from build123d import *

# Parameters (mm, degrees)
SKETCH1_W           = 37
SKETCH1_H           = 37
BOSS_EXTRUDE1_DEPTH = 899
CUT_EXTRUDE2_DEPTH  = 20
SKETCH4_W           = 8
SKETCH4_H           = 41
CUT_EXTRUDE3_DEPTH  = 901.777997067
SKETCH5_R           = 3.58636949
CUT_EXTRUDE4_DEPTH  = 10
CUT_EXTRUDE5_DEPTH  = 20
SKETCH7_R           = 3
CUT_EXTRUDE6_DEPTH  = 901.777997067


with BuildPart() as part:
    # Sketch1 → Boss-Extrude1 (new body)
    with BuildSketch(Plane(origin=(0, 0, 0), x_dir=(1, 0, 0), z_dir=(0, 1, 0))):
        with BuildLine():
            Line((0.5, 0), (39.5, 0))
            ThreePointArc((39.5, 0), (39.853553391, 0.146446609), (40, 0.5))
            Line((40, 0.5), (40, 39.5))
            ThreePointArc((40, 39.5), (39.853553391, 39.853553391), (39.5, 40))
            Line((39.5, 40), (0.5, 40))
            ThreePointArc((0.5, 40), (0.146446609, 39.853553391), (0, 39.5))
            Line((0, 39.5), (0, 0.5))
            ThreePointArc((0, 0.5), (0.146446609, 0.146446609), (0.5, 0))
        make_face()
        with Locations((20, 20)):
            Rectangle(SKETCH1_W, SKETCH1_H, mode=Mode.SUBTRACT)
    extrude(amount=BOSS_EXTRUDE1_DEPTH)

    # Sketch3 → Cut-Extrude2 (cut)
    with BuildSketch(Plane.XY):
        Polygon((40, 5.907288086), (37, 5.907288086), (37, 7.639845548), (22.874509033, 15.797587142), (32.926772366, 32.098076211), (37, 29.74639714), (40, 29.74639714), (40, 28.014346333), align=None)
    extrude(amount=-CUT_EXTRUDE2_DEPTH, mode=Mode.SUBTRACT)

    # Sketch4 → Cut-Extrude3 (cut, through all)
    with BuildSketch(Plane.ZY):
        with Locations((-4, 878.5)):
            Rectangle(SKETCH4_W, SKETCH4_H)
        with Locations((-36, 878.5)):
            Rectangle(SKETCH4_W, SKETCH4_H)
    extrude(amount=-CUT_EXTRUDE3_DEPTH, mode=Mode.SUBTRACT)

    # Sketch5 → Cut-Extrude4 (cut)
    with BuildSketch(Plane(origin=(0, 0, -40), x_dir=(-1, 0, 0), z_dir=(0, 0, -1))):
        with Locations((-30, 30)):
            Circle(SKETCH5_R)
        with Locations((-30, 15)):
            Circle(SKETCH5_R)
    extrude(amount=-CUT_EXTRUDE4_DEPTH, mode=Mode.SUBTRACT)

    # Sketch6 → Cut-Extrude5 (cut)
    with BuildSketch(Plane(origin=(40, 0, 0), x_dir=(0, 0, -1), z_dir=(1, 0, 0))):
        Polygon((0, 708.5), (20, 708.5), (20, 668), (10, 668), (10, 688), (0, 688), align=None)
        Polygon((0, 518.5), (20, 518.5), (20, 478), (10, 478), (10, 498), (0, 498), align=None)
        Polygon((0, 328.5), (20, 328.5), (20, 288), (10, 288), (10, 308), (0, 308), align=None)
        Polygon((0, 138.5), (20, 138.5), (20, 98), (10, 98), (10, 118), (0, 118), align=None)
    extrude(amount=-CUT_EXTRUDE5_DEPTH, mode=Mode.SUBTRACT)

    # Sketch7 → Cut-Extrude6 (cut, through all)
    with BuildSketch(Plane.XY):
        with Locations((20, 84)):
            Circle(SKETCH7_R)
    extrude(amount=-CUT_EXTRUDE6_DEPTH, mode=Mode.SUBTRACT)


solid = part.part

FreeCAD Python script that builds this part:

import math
import FreeCAD as App
import Part
import Sketcher
Q = App.Units.Quantity


def add_polygon(sketch, points):
    """Adds a closed chain of lines whose ends are joined by coincident constraints."""
    first, n = sketch.GeometryCount, len(points)
    for a, b in zip(points, points[1:] + points[:1]):
        sketch.addGeometry(Part.LineSegment(App.Vector(*a, 0), App.Vector(*b, 0)), False)
    for i in range(n):
        sketch.addConstraint(Sketcher.Constraint("Coincident", first + i, 2, first + (i + 1) % n, 1))

doc = App.newDocument("Part")
params = doc.addObject("Spreadsheet::Sheet", "Params")
for row, (alias, value) in enumerate([
    ("sketch1_radius", "0.5 mm"),
    ("sketch1_width", "39 mm"),
    ("sketch1_width2", "37 mm"),
    ("pad1_length", "899 mm"),
    ("sketch2_width", "3 mm"),
    ("pocket1_length", "20 mm"),
    ("sketch3_width", "41 mm"),
    ("sketch3_height", "8 mm"),
    ("pocket3_length", "10 mm"),
    ("sketch5_width", "20 mm"),
    ("sketch5_width2", "20.5 mm"),
    ("pocket4_length", "20 mm"),
    ("sketch6_diameter", "6 mm"),
], start=1):
    params.set(f"A{row}", alias)
    params.set(f"B{row}", "=" + value)
    params.setAlias(f"B{row}", alias)

body = doc.addObject("PartDesign::Body", "Body")

sketch1 = doc.addObject("Sketcher::SketchObject", "Sketch")
body.addObject(sketch1)
sketch1.AttachmentSupport = (doc.XZ_Plane, [""])
sketch1.MapMode = "FlatFace"
sketch1.addGeometry(Part.LineSegment(App.Vector(0.5, 0, 0), App.Vector(39.5, 0, 0)), False)
sketch1.addGeometry(Part.ArcOfCircle(Part.Circle(App.Vector(39.5, -0.5, 0), App.Vector(0, 0, 1), 0.5), math.radians(0), math.radians(90)), False)
sketch1.addGeometry(Part.LineSegment(App.Vector(40, -0.5, 0), App.Vector(40, -39.5, 0)), False)
sketch1.addGeometry(Part.ArcOfCircle(Part.Circle(App.Vector(39.5, -39.5, 0), App.Vector(0, 0, 1), 0.5), math.radians(-90), math.radians(0)), False)
sketch1.addGeometry(Part.LineSegment(App.Vector(39.5, -40, 0), App.Vector(0.5, -40, 0)), False)
sketch1.addGeometry(Part.ArcOfCircle(Part.Circle(App.Vector(0.5, -39.5, 0), App.Vector(0, 0, 1), 0.5), math.radians(180), math.radians(270)), False)
sketch1.addGeometry(Part.LineSegment(App.Vector(0, -39.5, 0), App.Vector(0, -0.5, 0)), False)
sketch1.addGeometry(Part.ArcOfCircle(Part.Circle(App.Vector(0.5, -0.5, 0), App.Vector(0, 0, 1), 0.5), math.radians(90), math.radians(180)), False)
add_polygon(sketch1, [(38.5, -1.5), (1.5, -1.5), (1.5, -38.5), (38.5, -38.5)])
sketch1.addConstraint([
    Sketcher.Constraint("Tangent", 0, 2, 1, 2),
    Sketcher.Constraint("Tangent", 1, 1, 2, 1),
    Sketcher.Constraint("Tangent", 2, 2, 3, 2),
    Sketcher.Constraint("Tangent", 3, 1, 4, 1),
    Sketcher.Constraint("Tangent", 4, 2, 5, 2),
    Sketcher.Constraint("Tangent", 5, 1, 6, 1),
    Sketcher.Constraint("Tangent", 6, 2, 7, 2),
    Sketcher.Constraint("Tangent", 7, 1, 0, 1),
    Sketcher.Constraint("Horizontal", 0),
    Sketcher.Constraint("Vertical", 2),
    Sketcher.Constraint("Horizontal", 4),
    Sketcher.Constraint("Vertical", 6),
    Sketcher.Constraint("Horizontal", 8),
    Sketcher.Constraint("Vertical", 9),
    Sketcher.Constraint("Horizontal", 10),
    Sketcher.Constraint("Vertical", 11),
    Sketcher.Constraint("Equal", 1, 3),
    Sketcher.Constraint("Equal", 3, 5),
    Sketcher.Constraint("Equal", 5, 7),
    Sketcher.Constraint("PointOnObject", 0, 2, -1),
    Sketcher.Constraint("PointOnObject", 5, 1, -2),
    Sketcher.Constraint("Equal", 4, 2),
    Sketcher.Constraint("Equal", 10, 9),
    Sketcher.Constraint("Radius", 1, Q("0.5 mm")),
    Sketcher.Constraint("DistanceX", 0, 1, 0, 2, Q("39 mm")),
    Sketcher.Constraint("DistanceX", 8, 2, 8, 1, Q("37 mm")),
    Sketcher.Constraint("DistanceX", 7, 3, 8, 2, Q("1 mm")),
    Sketcher.Constraint("DistanceY", 8, 2, 7, 3, Q("1 mm")),
])
sketch1.setExpression("Constraints[27]", "Params.sketch1_radius")
sketch1.setExpression("Constraints[28]", "Params.sketch1_width")
sketch1.setExpression("Constraints[29]", "Params.sketch1_width2")
pad1 = doc.addObject("PartDesign::Pad", "Pad")
body.addObject(pad1)
pad1.Profile = sketch1
pad1.setExpression("Length", "Params.pad1_length")
pad1.Reversed = True

sketch2 = doc.addObject("Sketcher::SketchObject", "Sketch001")
body.addObject(sketch2)
sketch2.AttachmentSupport = (doc.XY_Plane, [""])
sketch2.MapMode = "FlatFace"
add_polygon(sketch2, [(37, 5.9), (40, 5.9), (40, 29.7), (37, 29.7), (32.9, 32.1), (22.9, 15.8), (37, 7.6)])
sketch2.addConstraint([
    Sketcher.Constraint("Horizontal", 0),
    Sketcher.Constraint("Vertical", 1),
    Sketcher.Constraint("Horizontal", 2),
    Sketcher.Constraint("Vertical", 6),
    Sketcher.Constraint("Vertical", 2, 2, 5, 2),
    Sketcher.Constraint("DistanceX", 0, 1, 0, 2, Q("3 mm")),
    Sketcher.Constraint("Angle", 3, Q("150 deg")),
    Sketcher.Constraint("DistanceX", -1, 1, 0, 2, Q("40 mm")),
    Sketcher.Constraint("DistanceY", 1, 1, 1, 2, Q("23.839109 mm")),
    Sketcher.Constraint("DistanceY", 0, 2, 4, 2, Q("9.890299 mm")),
    Sketcher.Constraint("Distance", 3, Q("4.703358 mm")),
    Sketcher.Constraint("Distance", 4, Q("19.150821 mm")),
    Sketcher.Constraint("DistanceY", 6, 2, 6, 1, Q("1.732557 mm")),
    Sketcher.Constraint("DistanceY", -1, 1, 0, 2, Q("5.907288 mm")),
])
sketch2.setExpression("Constraints[12]", "Params.sketch2_width")
pocket1 = doc.addObject("PartDesign::Pocket", "Pocket")
body.addObject(pocket1)
pocket1.Profile = sketch2
pocket1.setExpression("Length", "Params.pocket1_length")

sketch3 = doc.addObject("Sketcher::SketchObject", "Sketch002")
body.addObject(sketch3)
sketch3.AttachmentSupport = (doc.YZ_Plane, [""])
sketch3.MapMode = "FlatFace"
add_polygon(sketch3, [(899, -8), (858, -8), (858, 0), (899, 0)])
add_polygon(sketch3, [(899, -40), (858, -40), (858, -32), (899, -32)])
sketch3.addConstraint([
    Sketcher.Constraint("Horizontal", 0),
    Sketcher.Constraint("Vertical", 1),
    Sketcher.Constraint("Horizontal", 2),
    Sketcher.Constraint("Vertical", 3),
    Sketcher.Constraint("Horizontal", 4),
    Sketcher.Constraint("Vertical", 5),
    Sketcher.Constraint("Horizontal", 6),
    Sketcher.Constraint("Vertical", 7),
    Sketcher.Constraint("PointOnObject", 1, 2, -1),
    Sketcher.Constraint("Vertical", 1, 2, 4, 2),
    Sketcher.Constraint("Vertical", 3, 2, 6, 2),
    Sketcher.Constraint("Equal", 3, 5),
    Sketcher.Constraint("DistanceX", 0, 2, 0, 1, Q("41 mm")),
    Sketcher.Constraint("DistanceY", 1, 1, 1, 2, Q("8 mm")),
    Sketcher.Constraint("DistanceX", -1, 1, 0, 2, Q("858 mm")),
    Sketcher.Constraint("DistanceY", 4, 2, -1, 1, Q("40 mm")),
])
sketch3.setExpression("Constraints[20]", "Params.sketch3_width")
sketch3.setExpression("Constraints[21]", "Params.sketch3_height")
pocket2 = doc.addObject("PartDesign::Pocket", "Pocket001")
body.addObject(pocket2)
pocket2.Profile = sketch3
pocket2.Type = "ThroughAll"
pocket2.Reversed = True

sketch4 = doc.addObject("Sketcher::SketchObject", "Sketch003")
body.addObject(sketch4)
sketch4.AttachmentSupport = (doc.XY_Plane, [""])
sketch4.MapMode = "FlatFace"
sketch4.AttachmentOffset = App.Placement(App.Vector(0, 0, -40), App.Rotation())
sketch4.addGeometry([
    Part.Circle(App.Vector(30, 30, 0), App.Vector(0, 0, 1), 3.6),
    Part.Circle(App.Vector(30, 15, 0), App.Vector(0, 0, 1), 3.6),
], False)
sketch4.addConstraint([
    Sketcher.Constraint("Equal", 0, 1),
    Sketcher.Constraint("Vertical", 0, 3, 1, 3),
    Sketcher.Constraint("DistanceX", -1, 1, 0, 3, Q("30 mm")),
    Sketcher.Constraint("DistanceY", -1, 1, 0, 3, Q("30 mm")),
    Sketcher.Constraint("DistanceY", -1, 1, 1, 3, Q("15 mm")),
    Sketcher.Constraint("Diameter", 0, Q("7.172739 mm")),
])
pocket3 = doc.addObject("PartDesign::Pocket", "Pocket002")
body.addObject(pocket3)
pocket3.Profile = sketch4
pocket3.setExpression("Length", "Params.pocket3_length")
pocket3.Reversed = True

sketch5 = doc.addObject("Sketcher::SketchObject", "Sketch004")
body.addObject(sketch5)
sketch5.AttachmentSupport = (doc.YZ_Plane, [""])
sketch5.MapMode = "FlatFace"
sketch5.AttachmentOffset = App.Placement(App.Vector(0, 0, 40), App.Rotation())
add_polygon(sketch5, [(708, -20), (708, 0), (688, 0), (688, -10), (668, -10), (668, -20)])
add_polygon(sketch5, [(518, -20), (518, 0), (498, 0), (498, -10), (478, -10), (478, -20)])
add_polygon(sketch5, [(328, -20), (328, 0), (308, 0), (308, -10), (288, -10), (288, -20)])
add_polygon(sketch5, [(138, -20), (138, 0), (118, 0), (118, -10), (98, -10), (98, -20)])
sketch5.addConstraint([
    Sketcher.Constraint("Vertical", 0),
    Sketcher.Constraint("Horizontal", 1),
    Sketcher.Constraint("Vertical", 2),
    Sketcher.Constraint("Horizontal", 3),
    Sketcher.Constraint("Vertical", 4),
    Sketcher.Constraint("Horizontal", 5),
    Sketcher.Constraint("Vertical", 6),
    Sketcher.Constraint("Horizontal", 7),
    Sketcher.Constraint("Vertical", 8),
    Sketcher.Constraint("Horizontal", 9),
    Sketcher.Constraint("Vertical", 10),
    Sketcher.Constraint("Horizontal", 11),
    Sketcher.Constraint("Vertical", 12),
    Sketcher.Constraint("Horizontal", 13),
    Sketcher.Constraint("Vertical", 14),
    Sketcher.Constraint("Horizontal", 15),
    Sketcher.Constraint("Vertical", 16),
    Sketcher.Constraint("Horizontal", 17),
    Sketcher.Constraint("Vertical", 18),
    Sketcher.Constraint("Horizontal", 19),
    Sketcher.Constraint("Vertical", 20),
    Sketcher.Constraint("Horizontal", 21),
    Sketcher.Constraint("Vertical", 22),
    Sketcher.Constraint("Horizontal", 23),
    Sketcher.Constraint("PointOnObject", 0, 2, -1),
    Sketcher.Constraint("PointOnObject", 6, 2, -1),
    Sketcher.Constraint("PointOnObject", 12, 2, -1),
    Sketcher.Constraint("PointOnObject", 18, 2, -1),
    Sketcher.Constraint("Horizontal", 3, 2, 8, 2),
    Sketcher.Constraint("Horizontal", 5, 2, 10, 2),
    Sketcher.Constraint("Horizontal", 9, 2, 14, 2),
    Sketcher.Constraint("Horizontal", 11, 2, 16, 2),
    Sketcher.Constraint("Horizontal", 15, 2, 20, 2),
    Sketcher.Constraint("Horizontal", 17, 2, 22, 2),
    Sketcher.Constraint("Equal", 1, 7),
    Sketcher.Constraint("Equal", 3, 9),
    Sketcher.Constraint("Equal", 7, 13),
    Sketcher.Constraint("Equal", 9, 15),
    Sketcher.Constraint("Equal", 13, 19),
    Sketcher.Constraint("Equal", 15, 21),
    Sketcher.Constraint("Equal", 21, 0),
    Sketcher.Constraint("Equal", 2, 4),
    Sketcher.Constraint("DistanceX", 3, 2, 3, 1, Q("20 mm")),
    Sketcher.Constraint("DistanceX", 1, 2, 1, 1, Q("20.5 mm")),
    Sketcher.Constraint("DistanceX", -1, 1, 1, 2, Q("688 mm")),
    Sketcher.Constraint("DistanceX", -1, 1, 7, 2, Q("498 mm")),
    Sketcher.Constraint("DistanceX", -1, 1, 13, 2, Q("308 mm")),
    Sketcher.Constraint("DistanceX", -1, 1, 19, 2, Q("118 mm")),
])
sketch5.setExpression("Constraints[66]", "Params.sketch5_width")
sketch5.setExpression("Constraints[67]", "Params.sketch5_width2")
pocket4 = doc.addObject("PartDesign::Pocket", "Pocket003")
body.addObject(pocket4)
pocket4.Profile = sketch5
pocket4.setExpression("Length", "Params.pocket4_length")

sketch6 = doc.addObject("Sketcher::SketchObject", "Sketch005")
body.addObject(sketch6)
sketch6.AttachmentSupport = (doc.XY_Plane, [""])
sketch6.MapMode = "FlatFace"
sketch6.addGeometry(Part.Circle(App.Vector(20, 84, 0), App.Vector(0, 0, 1), 3), False)
sketch6.addConstraint([
    Sketcher.Constraint("Diameter", 0, Q("6 mm")),
    Sketcher.Constraint("DistanceX", -1, 1, 0, 3, Q("20 mm")),
    Sketcher.Constraint("DistanceY", -1, 1, 0, 3, Q("84 mm")),
])
sketch6.setExpression("Constraints[0]", "Params.sketch6_diameter")
pocket5 = doc.addObject("PartDesign::Pocket", "Pocket004")
body.addObject(pocket5)
pocket5.Profile = sketch6
pocket5.Type = "ThroughAll"

doc.recompute()
